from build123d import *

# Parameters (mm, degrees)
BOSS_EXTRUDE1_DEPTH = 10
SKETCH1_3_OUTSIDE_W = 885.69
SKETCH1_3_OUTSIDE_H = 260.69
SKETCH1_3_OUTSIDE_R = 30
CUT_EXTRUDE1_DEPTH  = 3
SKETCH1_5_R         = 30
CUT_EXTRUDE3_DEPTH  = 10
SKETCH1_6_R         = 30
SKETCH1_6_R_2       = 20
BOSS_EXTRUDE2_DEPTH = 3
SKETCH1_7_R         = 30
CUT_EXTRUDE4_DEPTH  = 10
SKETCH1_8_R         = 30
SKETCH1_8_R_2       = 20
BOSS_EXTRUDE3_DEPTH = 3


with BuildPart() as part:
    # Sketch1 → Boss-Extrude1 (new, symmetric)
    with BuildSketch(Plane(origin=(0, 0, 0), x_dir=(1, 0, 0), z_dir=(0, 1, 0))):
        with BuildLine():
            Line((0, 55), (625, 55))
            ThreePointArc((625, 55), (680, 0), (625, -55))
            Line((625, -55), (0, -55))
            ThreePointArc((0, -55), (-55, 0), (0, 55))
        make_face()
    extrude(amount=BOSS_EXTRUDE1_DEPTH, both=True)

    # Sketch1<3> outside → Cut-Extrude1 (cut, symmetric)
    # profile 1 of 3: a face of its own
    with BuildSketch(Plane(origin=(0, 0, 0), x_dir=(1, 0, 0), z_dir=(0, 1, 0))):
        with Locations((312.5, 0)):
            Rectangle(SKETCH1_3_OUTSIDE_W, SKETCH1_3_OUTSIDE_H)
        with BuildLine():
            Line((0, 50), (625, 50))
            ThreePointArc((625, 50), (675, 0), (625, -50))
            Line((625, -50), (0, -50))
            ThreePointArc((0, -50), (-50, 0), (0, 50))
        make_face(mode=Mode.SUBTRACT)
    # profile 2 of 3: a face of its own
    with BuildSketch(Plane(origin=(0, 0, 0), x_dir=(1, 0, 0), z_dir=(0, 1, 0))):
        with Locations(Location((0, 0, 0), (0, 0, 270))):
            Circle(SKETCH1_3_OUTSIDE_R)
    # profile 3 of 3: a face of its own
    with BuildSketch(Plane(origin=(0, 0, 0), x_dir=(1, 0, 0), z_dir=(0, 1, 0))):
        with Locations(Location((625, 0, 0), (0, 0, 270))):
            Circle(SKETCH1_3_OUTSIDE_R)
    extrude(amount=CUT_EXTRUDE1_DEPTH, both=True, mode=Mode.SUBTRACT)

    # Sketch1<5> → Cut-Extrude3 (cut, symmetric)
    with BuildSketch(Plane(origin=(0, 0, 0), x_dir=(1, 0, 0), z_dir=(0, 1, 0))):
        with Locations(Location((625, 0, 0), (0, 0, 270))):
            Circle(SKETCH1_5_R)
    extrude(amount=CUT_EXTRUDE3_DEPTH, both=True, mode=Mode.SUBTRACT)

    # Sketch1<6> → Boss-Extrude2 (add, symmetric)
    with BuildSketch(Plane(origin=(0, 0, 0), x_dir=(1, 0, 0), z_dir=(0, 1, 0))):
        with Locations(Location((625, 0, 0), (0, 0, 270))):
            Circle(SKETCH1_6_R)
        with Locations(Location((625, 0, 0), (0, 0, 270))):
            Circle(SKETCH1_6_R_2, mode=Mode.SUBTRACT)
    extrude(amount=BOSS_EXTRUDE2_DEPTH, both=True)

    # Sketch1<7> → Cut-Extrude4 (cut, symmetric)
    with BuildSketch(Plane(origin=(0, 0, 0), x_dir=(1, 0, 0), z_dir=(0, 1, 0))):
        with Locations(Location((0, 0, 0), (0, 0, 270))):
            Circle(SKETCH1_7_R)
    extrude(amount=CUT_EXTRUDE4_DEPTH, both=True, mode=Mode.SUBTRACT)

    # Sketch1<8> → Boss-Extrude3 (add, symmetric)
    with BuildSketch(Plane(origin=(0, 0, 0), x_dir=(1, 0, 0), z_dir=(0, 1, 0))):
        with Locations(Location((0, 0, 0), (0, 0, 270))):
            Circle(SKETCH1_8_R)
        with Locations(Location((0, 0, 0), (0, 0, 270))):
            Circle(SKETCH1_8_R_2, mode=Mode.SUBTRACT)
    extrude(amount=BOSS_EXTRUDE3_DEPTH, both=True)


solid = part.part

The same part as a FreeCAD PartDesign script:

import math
import FreeCAD as App
import Part
import Sketcher
from FreeCAD import Vector

doc = App.newDocument("Part")
body = doc.addObject("PartDesign::Body", "Body")

sketch1 = doc.addObject("Sketcher::SketchObject", "Sketch")
body.addObject(sketch1)
sketch1.AttachmentSupport = (doc.XZ_Plane, [""])
sketch1.MapMode = "FlatFace"
sketch1.addGeometry(Part.LineSegment(Vector(625, -55, 0), Vector(0, -55, 0)), False)
sketch1.addGeometry(Part.ArcOfCircle(Part.Circle(Vector(0, 0, 0), Vector(0, 0, 1), 55), math.radians(90), math.radians(270)), False)
sketch1.addGeometry(Part.LineSegment(Vector(0, 55, 0), Vector(625, 55, 0)), False)
sketch1.addGeometry(Part.ArcOfCircle(Part.Circle(Vector(625, 0, 0), Vector(0, 0, 1), 55), math.radians(-90), math.radians(90)), False)
sketch1.addConstraint(Sketcher.Constraint("Tangent", 0, 2, 1, 2))
sketch1.addConstraint(Sketcher.Constraint("Tangent", 1, 1, 2, 1))
sketch1.addConstraint(Sketcher.Constraint("Tangent", 2, 2, 3, 2))
sketch1.addConstraint(Sketcher.Constraint("Tangent", 3, 1, 0, 1))
sketch1.addConstraint(Sketcher.Constraint("Horizontal", 0))
sketch1.addConstraint(Sketcher.Constraint("Horizontal", 2))
sketch1.addConstraint(Sketcher.Constraint("Coincident", 1, 3, -1, 1))
sketch1.addConstraint(Sketcher.Constraint("Radius", 1, 55.0))
sketch1.addConstraint(Sketcher.Constraint("DistanceX", 0, 2, 0, 1, 625.0))
pad1 = doc.addObject("PartDesign::Pad", "Pad")
body.addObject(pad1)
pad1.Profile = sketch1
pad1.Length = 20
pad1.Midplane = True

sketch2 = doc.addObject("Sketcher::SketchObject", "Sketch001")
body.addObject(sketch2)
sketch2.AttachmentSupport = (doc.XZ_Plane, [""])
sketch2.MapMode = "FlatFace"
sketch2.addGeometry(Part.LineSegment(Vector(-130, -130, 0), Vector(-130, 130, 0)), False)
sketch2.addGeometry(Part.LineSegment(Vector(-130, 130, 0), Vector(755, 130, 0)), False)
sketch2.addGeometry(Part.LineSegment(Vector(755, 130, 0), Vector(755, -130, 0)), False)
sketch2.addGeometry(Part.LineSegment(Vector(755, -130, 0), Vector(-130, -130, 0)), False)
sketch2.addGeometry(Part.ArcOfCircle(Part.Circle(Vector(0, 0, 0), Vector(0, 0, 1), 50), math.radians(90), math.radians(270)), False)
sketch2.addGeometry(Part.LineSegment(Vector(0, -50, 0), Vector(625, -50, 0)), False)
sketch2.addGeometry(Part.ArcOfCircle(Part.Circle(Vector(625, 0, 0), Vector(0, 0, 1), 50), math.radians(-90), math.radians(90)), False)
sketch2.addGeometry(Part.LineSegment(Vector(625, 50, 0), Vector(0, 50, 0)), False)
sketch2.addGeometry(Part.Circle(Vector(0, 0, 0), Vector(0, 0, 1), 30), False)
sketch2.addGeometry(Part.Circle(Vector(625, 0, 0), Vector(0, 0, 1), 30), False)
sketch2.addConstraint(Sketcher.Constraint("Coincident", 0, 2, 1, 1))
sketch2.addConstraint(Sketcher.Constraint("Coincident", 1, 2, 2, 1))
sketch2.addConstraint(Sketcher.Constraint("Coincident", 2, 2, 3, 1))
sketch2.addConstraint(Sketcher.Constraint("Coincident", 3, 2, 0, 1))
sketch2.addConstraint(Sketcher.Constraint("Tangent", 4, 2, 5, 1))
sketch2.addConstraint(Sketcher.Constraint("Tangent", 5, 2, 6, 1))
sketch2.addConstraint(Sketcher.Constraint("Tangent", 6, 2, 7, 1))
sketch2.addConstraint(Sketcher.Constraint("Tangent", 7, 2, 4, 1))
sketch2.addConstraint(Sketcher.Constraint("Vertical", 0))
sketch2.addConstraint(Sketcher.Constraint("Horizontal", 1))
sketch2.addConstraint(Sketcher.Constraint("Vertical", 2))
sketch2.addConstraint(Sketcher.Constraint("Horizontal", 3))
sketch2.addConstraint(Sketcher.Constraint("Horizontal", 5))
sketch2.addConstraint(Sketcher.Constraint("Horizontal", 7))
sketch2.addConstraint(Sketcher.Constraint("Coincident", 4, 3, -1, 1))
sketch2.addConstraint(Sketcher.Constraint("Coincident", 8, 3, -1, 1))
sketch2.addConstraint(Sketcher.Constraint("Coincident", 9, 3, 6, 3))
sketch2.addConstraint(Sketcher.Constraint("Equal", 8, 9))
sketch2.addConstraint(Sketcher.Constraint("Diameter", 8, 60.0))
sketch2.addConstraint(Sketcher.Constraint("Radius", 4, 50.0))
sketch2.addConstraint(Sketcher.Constraint("DistanceX", 5, 1, 5, 2, 625.0))
sketch2.addConstraint(Sketcher.Constraint("DistanceX", 1, 1, 1, 2, 885.69))
sketch2.addConstraint(Sketcher.Constraint("DistanceY", 0, 1, 0, 2, 260.69))
sketch2.addConstraint(Sketcher.Constraint("DistanceX", 0, 2, -1, 1, 130.345))
sketch2.addConstraint(Sketcher.Constraint("DistanceY", -1, 1, 0, 2, 130.345))
pocket1 = doc.addObject("PartDesign::Pocket", "Pocket")
body.addObject(pocket1)
pocket1.Profile = sketch2
pocket1.Length = 6
pocket1.Midplane = True

sketch3 = doc.addObject("Sketcher::SketchObject", "Sketch002")
body.addObject(sketch3)
sketch3.AttachmentSupport = (doc.XZ_Plane, [""])
sketch3.MapMode = "FlatFace"
sketch3.addGeometry(Part.Circle(Vector(625, 0, 0), Vector(0, 0, 1), 30), False)
sketch3.addConstraint(Sketcher.Constraint("PointOnObject", 0, 3, -1))
sketch3.addConstraint(Sketcher.Constraint("Diameter", 0, 60.0))
sketch3.addConstraint(Sketcher.Constraint("DistanceX", -1, 1, 0, 3, 625.0))
pocket2 = doc.addObject("PartDesign::Pocket", "Pocket001")
body.addObject(pocket2)
pocket2.Profile = sketch3
pocket2.Length = 20
pocket2.Midplane = True

sketch4 = doc.addObject("Sketcher::SketchObject", "Sketch003")
body.addObject(sketch4)
sketch4.AttachmentSupport = (doc.XZ_Plane, [""])
sketch4.MapMode = "FlatFace"
sketch4.addGeometry(Part.Circle(Vector(625, 0, 0), Vector(0, 0, 1), 30), False)
sketch4.addGeometry(Part.Circle(Vector(625, 0, 0), Vector(0, 0, 1), 20), False)
sketch4.addConstraint(Sketcher.Constraint("Coincident", 1, 3, 0, 3))
sketch4.addConstraint(Sketcher.Constraint("PointOnObject", 0, 3, -1))
sketch4.addConstraint(Sketcher.Constraint("Diameter", 0, 60.0))
sketch4.addConstraint(Sketcher.Constraint("Diameter", 1, 40.0))
sketch4.addConstraint(Sketcher.Constraint("DistanceX", -1, 1, 0, 3, 625.0))
pad2 = doc.addObject("PartDesign::Pad", "Pad001")
body.addObject(pad2)
pad2.Profile = sketch4
pad2.Length = 6
pad2.Midplane = True

sketch5 = doc.addObject("Sketcher::SketchObject", "Sketch004")
body.addObject(sketch5)
sketch5.AttachmentSupport = (doc.XZ_Plane, [""])
sketch5.MapMode = "FlatFace"
sketch5.addGeometry(Part.Circle(Vector(0, 0, 0), Vector(0, 0, 1), 30), False)
sketch5.addConstraint(Sketcher.Constraint("Coincident", 0, 3, -1, 1))
sketch5.addConstraint(Sketcher.Constraint("Diameter", 0, 60.0))
pocket3 = doc.addObject("PartDesign::Pocket", "Pocket002")
body.addObject(pocket3)
pocket3.Profile = sketch5
pocket3.Length = 20
pocket3.Midplane = True

sketch6 = doc.addObject("Sketcher::SketchObject", "Sketch005")
body.addObject(sketch6)
sketch6.AttachmentSupport = (doc.XZ_Plane, [""])
sketch6.MapMode = "FlatFace"
sketch6.addGeometry(Part.Circle(Vector(0, 0, 0), Vector(0, 0, 1), 30), False)
sketch6.addGeometry(Part.Circle(Vector(0, 0, 0), Vector(0, 0, 1), 20), False)
sketch6.addConstraint(Sketcher.Constraint("Coincident", 0, 3, -1, 1))
sketch6.addConstraint(Sketcher.Constraint("Coincident", 1, 3, -1, 1))
sketch6.addConstraint(Sketcher.Constraint("Diameter", 0, 60.0))
sketch6.addConstraint(Sketcher.Constraint("Diameter", 1, 40.0))
pad3 = doc.addObject("PartDesign::Pad", "Pad002")
body.addObject(pad3)
pad3.Profile = sketch6
pad3.Length = 6
pad3.Midplane = True

doc.recompute()
